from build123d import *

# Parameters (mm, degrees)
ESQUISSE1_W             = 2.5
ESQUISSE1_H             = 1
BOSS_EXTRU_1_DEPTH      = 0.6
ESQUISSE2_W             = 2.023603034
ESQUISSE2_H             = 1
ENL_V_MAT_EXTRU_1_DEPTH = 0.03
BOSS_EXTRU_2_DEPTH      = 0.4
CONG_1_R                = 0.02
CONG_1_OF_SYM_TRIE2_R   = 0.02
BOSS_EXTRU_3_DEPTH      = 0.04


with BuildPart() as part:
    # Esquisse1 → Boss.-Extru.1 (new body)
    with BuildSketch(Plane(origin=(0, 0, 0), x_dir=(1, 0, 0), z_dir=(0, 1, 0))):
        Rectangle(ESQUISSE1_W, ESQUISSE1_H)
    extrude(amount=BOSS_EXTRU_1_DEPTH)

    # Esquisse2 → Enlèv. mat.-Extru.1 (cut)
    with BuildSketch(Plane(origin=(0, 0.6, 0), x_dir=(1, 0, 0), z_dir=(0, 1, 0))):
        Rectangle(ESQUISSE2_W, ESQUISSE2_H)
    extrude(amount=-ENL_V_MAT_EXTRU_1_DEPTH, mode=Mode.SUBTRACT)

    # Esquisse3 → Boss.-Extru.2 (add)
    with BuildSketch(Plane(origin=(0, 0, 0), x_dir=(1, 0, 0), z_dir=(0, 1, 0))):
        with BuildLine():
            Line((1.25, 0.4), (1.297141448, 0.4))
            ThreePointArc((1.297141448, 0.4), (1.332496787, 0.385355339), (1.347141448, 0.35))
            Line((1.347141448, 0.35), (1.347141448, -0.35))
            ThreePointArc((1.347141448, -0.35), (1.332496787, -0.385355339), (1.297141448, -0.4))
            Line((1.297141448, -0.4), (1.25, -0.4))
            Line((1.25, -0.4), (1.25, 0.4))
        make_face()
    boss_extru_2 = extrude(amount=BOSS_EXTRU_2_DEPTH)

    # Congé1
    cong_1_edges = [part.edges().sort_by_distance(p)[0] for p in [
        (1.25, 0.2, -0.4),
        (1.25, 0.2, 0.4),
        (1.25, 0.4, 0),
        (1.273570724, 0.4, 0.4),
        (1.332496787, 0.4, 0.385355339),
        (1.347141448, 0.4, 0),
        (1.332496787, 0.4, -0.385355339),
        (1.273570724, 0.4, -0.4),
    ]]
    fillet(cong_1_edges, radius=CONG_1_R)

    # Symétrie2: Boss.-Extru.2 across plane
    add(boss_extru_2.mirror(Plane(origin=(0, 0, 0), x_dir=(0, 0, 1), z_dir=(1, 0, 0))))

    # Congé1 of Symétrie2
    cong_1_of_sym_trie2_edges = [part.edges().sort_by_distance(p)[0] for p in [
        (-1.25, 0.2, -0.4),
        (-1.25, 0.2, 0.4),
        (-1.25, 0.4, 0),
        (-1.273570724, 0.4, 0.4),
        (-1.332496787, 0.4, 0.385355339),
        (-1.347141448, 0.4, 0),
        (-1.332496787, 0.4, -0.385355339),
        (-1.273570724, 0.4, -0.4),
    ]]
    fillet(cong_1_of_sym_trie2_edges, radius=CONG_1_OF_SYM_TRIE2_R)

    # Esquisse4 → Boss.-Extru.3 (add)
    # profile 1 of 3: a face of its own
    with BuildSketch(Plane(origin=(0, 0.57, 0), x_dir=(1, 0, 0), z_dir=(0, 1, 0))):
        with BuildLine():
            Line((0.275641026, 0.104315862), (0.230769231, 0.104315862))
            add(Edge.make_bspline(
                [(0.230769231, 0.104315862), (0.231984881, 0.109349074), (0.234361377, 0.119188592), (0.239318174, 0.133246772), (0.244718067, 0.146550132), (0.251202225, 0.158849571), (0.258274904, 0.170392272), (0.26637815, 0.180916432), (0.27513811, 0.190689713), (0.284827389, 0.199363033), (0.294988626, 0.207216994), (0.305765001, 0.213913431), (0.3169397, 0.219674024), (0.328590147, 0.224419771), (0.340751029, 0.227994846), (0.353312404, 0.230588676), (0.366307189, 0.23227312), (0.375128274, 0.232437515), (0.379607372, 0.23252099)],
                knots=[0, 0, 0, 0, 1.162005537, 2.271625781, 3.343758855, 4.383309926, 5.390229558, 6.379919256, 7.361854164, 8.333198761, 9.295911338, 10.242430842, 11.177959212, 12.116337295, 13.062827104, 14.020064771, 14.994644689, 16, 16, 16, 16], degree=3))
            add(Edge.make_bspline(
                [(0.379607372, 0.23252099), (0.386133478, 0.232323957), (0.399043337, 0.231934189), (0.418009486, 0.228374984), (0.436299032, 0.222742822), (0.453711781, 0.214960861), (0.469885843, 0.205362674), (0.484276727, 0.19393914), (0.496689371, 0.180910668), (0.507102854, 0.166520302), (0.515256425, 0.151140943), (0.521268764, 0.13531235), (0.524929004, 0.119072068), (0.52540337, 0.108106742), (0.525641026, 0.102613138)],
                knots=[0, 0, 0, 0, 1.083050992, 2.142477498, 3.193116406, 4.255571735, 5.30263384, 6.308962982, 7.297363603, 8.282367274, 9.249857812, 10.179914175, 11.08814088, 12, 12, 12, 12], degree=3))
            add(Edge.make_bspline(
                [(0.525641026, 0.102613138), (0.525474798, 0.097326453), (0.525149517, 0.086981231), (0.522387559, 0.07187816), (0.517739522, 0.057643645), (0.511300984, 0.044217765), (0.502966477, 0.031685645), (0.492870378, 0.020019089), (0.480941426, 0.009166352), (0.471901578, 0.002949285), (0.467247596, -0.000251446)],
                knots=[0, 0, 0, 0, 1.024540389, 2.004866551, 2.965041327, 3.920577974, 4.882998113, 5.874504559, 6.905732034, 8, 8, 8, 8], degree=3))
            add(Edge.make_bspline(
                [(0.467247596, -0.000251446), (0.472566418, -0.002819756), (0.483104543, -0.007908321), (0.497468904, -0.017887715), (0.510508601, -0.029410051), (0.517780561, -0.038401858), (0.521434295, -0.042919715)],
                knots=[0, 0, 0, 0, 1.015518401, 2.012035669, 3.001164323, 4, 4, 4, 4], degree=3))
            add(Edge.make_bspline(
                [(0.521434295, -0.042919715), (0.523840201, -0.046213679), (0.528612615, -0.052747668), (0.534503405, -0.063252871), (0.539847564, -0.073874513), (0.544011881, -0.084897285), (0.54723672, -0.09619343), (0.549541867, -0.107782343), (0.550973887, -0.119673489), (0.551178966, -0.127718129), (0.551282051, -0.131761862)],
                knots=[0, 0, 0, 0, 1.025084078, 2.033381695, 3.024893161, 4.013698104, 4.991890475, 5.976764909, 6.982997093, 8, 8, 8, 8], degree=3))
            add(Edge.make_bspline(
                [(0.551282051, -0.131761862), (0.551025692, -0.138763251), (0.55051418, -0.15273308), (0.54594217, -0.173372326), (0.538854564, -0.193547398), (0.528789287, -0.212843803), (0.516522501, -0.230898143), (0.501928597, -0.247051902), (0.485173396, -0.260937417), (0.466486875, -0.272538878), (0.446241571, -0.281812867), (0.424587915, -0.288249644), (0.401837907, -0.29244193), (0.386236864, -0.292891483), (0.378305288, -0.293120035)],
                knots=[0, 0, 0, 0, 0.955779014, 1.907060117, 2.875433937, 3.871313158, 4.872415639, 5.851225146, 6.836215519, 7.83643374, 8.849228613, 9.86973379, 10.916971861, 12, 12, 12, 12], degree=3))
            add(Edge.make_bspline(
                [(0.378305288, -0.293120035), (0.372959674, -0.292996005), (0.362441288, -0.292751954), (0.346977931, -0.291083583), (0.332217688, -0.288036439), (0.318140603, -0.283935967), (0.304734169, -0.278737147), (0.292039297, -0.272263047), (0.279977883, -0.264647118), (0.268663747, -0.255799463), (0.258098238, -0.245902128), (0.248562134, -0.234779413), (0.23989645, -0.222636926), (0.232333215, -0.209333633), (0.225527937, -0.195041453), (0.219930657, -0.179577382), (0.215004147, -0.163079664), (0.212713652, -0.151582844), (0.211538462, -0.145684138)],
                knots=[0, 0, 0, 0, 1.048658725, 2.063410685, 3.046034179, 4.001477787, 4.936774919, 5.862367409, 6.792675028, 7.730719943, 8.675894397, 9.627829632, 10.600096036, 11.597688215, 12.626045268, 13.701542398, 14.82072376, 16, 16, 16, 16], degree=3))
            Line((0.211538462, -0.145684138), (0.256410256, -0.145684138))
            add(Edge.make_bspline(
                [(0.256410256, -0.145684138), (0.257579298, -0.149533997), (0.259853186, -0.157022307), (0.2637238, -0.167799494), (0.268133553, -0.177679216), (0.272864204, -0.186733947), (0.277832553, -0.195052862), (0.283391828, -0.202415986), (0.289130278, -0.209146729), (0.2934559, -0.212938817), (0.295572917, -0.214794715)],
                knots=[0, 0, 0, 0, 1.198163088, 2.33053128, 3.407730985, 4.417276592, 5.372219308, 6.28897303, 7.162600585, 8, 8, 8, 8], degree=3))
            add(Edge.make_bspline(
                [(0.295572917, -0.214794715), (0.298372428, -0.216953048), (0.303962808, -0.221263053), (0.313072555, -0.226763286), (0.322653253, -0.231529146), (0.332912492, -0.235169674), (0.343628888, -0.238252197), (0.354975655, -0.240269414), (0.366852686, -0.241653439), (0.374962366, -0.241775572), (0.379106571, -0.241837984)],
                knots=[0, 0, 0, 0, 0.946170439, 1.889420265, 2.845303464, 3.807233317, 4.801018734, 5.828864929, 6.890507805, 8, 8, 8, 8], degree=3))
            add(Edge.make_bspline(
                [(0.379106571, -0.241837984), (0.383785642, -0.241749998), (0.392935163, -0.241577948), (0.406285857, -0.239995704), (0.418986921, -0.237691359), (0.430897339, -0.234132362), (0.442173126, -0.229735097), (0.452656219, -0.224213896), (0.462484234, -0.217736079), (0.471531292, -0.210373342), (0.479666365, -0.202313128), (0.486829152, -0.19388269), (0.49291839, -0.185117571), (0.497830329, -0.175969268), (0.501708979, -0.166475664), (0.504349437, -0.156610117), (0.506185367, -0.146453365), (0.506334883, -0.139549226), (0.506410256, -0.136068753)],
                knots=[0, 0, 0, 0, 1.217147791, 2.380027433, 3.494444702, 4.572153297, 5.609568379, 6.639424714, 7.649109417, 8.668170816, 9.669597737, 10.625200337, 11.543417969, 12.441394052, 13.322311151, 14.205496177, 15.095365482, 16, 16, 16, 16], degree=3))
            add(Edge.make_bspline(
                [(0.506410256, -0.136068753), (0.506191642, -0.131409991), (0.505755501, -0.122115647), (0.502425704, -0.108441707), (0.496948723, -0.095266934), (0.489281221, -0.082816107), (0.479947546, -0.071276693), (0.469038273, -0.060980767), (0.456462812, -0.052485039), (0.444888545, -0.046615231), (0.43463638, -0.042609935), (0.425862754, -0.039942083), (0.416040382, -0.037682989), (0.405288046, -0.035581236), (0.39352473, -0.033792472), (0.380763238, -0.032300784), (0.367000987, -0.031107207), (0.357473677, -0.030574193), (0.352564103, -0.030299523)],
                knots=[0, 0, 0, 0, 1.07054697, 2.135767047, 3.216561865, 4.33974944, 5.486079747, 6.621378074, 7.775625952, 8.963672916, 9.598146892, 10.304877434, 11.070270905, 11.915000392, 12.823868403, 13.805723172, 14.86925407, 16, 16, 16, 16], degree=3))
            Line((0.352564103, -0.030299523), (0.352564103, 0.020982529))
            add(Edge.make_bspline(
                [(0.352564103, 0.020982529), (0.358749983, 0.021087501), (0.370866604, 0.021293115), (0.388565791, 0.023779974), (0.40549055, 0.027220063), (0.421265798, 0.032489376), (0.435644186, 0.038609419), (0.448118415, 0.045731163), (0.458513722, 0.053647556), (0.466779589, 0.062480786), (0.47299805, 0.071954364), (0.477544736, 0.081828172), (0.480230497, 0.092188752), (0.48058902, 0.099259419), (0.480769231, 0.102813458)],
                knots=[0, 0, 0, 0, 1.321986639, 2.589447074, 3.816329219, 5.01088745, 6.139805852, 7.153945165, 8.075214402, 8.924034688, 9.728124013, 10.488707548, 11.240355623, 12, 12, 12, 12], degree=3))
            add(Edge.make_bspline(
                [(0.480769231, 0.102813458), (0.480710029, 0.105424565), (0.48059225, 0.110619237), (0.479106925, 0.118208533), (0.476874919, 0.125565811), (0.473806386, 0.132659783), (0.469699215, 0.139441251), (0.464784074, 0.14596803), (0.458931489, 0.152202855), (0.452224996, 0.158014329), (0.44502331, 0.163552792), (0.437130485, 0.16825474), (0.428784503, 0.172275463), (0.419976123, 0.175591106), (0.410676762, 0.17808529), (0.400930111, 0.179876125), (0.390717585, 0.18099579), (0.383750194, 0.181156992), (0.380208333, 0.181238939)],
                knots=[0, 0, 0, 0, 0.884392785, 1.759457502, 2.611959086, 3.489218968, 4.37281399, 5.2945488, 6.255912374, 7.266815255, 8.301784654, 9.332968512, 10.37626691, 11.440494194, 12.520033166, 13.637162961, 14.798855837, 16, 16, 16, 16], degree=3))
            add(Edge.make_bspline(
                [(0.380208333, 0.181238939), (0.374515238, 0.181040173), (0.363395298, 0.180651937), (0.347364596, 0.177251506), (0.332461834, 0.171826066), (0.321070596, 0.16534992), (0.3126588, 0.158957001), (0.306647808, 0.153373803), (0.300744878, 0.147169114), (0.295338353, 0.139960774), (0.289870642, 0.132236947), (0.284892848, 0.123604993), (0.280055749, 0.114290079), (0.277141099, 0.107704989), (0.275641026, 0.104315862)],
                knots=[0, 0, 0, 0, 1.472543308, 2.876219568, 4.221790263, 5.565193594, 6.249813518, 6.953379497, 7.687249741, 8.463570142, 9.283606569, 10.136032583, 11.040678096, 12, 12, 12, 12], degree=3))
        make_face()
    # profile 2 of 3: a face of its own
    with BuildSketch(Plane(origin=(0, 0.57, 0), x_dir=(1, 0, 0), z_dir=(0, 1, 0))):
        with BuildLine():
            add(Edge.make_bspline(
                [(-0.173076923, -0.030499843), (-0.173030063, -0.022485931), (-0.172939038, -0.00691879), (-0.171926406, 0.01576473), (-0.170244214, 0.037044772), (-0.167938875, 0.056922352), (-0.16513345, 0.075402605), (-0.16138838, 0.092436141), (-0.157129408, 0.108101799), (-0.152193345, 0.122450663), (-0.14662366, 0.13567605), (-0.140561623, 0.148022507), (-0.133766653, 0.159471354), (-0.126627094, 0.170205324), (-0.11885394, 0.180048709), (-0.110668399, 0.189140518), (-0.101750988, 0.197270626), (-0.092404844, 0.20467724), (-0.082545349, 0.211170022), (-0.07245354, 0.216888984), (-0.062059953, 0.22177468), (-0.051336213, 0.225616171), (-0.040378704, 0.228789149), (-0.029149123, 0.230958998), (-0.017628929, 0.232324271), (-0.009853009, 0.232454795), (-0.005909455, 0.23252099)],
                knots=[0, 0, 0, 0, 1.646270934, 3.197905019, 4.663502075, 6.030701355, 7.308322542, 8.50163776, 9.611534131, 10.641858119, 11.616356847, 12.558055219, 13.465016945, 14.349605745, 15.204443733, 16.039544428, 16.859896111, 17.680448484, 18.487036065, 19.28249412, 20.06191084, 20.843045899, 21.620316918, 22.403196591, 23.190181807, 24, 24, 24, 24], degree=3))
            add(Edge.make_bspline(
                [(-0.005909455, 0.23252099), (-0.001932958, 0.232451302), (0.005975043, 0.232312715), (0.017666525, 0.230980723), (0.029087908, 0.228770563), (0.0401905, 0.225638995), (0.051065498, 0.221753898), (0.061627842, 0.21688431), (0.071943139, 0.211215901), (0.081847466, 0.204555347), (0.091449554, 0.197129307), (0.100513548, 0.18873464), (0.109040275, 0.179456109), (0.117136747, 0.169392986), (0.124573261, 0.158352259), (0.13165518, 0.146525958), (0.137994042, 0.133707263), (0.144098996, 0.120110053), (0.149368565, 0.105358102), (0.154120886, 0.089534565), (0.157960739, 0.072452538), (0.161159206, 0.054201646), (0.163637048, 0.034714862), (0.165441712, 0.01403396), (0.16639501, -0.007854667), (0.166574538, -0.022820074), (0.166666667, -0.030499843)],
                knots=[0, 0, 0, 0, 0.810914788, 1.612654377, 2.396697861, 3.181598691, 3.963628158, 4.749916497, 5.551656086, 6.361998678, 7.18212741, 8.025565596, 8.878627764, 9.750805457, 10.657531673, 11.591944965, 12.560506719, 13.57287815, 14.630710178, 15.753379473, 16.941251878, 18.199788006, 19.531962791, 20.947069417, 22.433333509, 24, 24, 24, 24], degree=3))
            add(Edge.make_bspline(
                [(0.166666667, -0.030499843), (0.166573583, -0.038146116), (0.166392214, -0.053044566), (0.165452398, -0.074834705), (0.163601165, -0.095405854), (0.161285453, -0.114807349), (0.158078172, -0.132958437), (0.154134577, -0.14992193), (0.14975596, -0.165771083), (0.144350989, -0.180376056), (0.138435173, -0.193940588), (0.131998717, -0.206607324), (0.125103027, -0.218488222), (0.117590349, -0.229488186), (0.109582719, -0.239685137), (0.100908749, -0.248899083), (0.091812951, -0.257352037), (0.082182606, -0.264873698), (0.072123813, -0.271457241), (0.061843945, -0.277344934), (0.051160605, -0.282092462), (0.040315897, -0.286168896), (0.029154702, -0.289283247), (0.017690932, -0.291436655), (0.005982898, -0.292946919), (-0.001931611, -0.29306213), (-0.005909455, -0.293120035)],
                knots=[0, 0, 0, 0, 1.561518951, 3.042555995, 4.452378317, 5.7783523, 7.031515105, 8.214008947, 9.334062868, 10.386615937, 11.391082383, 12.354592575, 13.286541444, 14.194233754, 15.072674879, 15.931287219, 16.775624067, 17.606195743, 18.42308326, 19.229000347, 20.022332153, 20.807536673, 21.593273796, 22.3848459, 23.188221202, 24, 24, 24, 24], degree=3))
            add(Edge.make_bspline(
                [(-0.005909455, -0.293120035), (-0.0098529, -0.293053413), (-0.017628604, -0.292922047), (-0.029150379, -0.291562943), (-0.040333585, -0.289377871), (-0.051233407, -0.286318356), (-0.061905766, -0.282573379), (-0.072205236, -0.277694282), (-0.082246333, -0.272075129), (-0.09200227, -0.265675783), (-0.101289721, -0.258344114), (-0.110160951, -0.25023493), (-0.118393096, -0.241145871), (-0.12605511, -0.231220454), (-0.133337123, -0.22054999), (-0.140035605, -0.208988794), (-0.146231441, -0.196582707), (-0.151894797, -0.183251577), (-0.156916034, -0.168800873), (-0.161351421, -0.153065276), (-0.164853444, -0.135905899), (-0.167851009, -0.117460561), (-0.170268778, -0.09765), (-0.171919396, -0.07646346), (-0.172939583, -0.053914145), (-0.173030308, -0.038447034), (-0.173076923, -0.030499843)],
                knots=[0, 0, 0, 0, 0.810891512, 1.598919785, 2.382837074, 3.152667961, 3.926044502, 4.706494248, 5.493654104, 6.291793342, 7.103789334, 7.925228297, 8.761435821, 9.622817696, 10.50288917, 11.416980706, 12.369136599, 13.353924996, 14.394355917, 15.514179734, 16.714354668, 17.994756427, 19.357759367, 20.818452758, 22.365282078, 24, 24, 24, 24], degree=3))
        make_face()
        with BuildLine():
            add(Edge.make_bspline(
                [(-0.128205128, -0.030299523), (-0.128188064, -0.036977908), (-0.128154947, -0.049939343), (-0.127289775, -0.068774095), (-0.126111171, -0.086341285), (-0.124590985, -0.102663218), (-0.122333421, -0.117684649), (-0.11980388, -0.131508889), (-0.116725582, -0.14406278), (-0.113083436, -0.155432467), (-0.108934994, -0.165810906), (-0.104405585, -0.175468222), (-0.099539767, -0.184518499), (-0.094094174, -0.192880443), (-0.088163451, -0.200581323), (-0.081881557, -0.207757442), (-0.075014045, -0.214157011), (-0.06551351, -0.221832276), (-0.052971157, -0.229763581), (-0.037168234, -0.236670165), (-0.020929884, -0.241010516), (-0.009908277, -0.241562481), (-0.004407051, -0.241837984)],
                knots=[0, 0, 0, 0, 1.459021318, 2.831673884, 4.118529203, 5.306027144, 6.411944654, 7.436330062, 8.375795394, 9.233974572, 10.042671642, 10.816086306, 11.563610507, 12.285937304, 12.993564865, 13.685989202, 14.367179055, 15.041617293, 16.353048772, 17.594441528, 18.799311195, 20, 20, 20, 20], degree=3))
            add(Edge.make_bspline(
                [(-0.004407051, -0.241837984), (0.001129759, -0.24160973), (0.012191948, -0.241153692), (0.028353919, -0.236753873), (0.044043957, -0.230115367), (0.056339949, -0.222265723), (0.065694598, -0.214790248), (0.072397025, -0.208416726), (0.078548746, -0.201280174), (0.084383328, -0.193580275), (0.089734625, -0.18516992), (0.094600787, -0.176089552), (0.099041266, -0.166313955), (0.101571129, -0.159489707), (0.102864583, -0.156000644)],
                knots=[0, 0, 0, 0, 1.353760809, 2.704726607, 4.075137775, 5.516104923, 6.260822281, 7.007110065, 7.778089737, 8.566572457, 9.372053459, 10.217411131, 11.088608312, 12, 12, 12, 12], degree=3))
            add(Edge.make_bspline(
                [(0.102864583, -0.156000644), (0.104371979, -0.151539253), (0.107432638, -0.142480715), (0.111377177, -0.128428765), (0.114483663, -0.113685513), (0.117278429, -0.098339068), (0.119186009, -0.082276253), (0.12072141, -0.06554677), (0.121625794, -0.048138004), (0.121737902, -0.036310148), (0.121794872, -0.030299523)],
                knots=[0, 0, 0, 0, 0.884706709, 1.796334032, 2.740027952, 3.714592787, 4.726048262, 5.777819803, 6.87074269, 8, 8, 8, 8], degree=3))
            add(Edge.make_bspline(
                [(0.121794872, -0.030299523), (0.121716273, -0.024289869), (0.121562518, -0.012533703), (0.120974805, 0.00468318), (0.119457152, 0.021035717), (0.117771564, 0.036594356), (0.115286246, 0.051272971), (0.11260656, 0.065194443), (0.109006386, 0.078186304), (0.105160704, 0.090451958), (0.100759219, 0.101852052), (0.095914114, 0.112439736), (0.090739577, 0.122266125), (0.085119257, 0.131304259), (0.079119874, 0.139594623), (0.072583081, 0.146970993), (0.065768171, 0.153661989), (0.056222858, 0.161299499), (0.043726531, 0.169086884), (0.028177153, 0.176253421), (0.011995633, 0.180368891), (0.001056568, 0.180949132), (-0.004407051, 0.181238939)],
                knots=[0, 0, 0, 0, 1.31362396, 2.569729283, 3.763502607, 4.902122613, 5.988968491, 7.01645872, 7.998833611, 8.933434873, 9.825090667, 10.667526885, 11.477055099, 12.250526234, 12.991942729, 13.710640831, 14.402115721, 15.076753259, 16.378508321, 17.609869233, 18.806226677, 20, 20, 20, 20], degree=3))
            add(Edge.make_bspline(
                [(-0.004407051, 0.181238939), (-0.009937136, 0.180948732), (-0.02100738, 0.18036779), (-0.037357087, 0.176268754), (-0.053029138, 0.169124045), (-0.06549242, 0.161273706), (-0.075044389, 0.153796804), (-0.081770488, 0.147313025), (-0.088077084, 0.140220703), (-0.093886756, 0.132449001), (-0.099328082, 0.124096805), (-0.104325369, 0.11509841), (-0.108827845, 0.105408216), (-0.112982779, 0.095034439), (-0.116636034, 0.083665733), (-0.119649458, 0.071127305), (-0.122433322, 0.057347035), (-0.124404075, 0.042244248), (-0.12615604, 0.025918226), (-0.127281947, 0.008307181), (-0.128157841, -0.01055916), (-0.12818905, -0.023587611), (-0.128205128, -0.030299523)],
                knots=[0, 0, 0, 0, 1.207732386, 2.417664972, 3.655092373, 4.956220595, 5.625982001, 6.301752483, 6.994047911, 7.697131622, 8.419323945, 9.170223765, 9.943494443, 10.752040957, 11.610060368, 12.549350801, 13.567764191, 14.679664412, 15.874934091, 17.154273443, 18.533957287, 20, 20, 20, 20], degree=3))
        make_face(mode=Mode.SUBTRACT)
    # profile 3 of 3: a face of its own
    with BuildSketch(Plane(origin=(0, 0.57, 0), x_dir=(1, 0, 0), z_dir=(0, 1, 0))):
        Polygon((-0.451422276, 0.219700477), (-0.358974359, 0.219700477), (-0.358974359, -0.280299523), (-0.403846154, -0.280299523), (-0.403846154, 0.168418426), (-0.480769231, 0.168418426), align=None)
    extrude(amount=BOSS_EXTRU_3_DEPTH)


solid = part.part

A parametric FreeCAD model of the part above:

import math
import FreeCAD as App
import Part
import Sketcher
Q = App.Units.Quantity


def edges_at(feature, points):
    """Names of the edges that pass closest to the given points."""
    edges = feature.Shape.Edges
    near = lambda p: min(range(len(edges)), key=lambda i: edges[i].distToShape(Part.Vertex(*p))[0])
    return sorted({f"Edge{near(p) + 1}" for p in points})

doc = App.newDocument("Part")
params = doc.addObject("Spreadsheet::Sheet", "Params")
for row, (alias, value) in enumerate([
    ("sketch1_height", "1 mm"),
    ("sketch1_width", "2.5 mm"),
    ("pad1_length", "0.6 mm"),
    ("sketch2_height", "1 mm"),
    ("pocket1_length", "0.03 mm"),
    ("sketch3_radius", "0.05 mm"),
    ("sketch3_height", "0.8 mm"),
    ("pad2_length", "0.4 mm"),
    ("fillet_radius", "0.02 mm"),
    ("fillet2_radius", "0.02 mm"),
    ("sketch4_height", "0.5 mm"),
    ("pad3_length", "0.04 mm"),
], start=1):
    params.set(f"A{row}", alias)
    params.set(f"B{row}", "=" + value)
    params.setAlias(f"B{row}", alias)

body = doc.addObject("PartDesign::Body", "Body")

# Sketch on XZ plane
sketch1 = doc.addObject("Sketcher::SketchObject", "Sketch")
body.addObject(sketch1)
sketch1.AttachmentSupport = (doc.XZ_Plane, [""])
sketch1.MapMode = "FlatFace"
sketch1.addGeometry(Part.LineSegment(App.Vector(-1.2, -0.5, 0), App.Vector(-1.2, 0.5, 0)), False)
sketch1.addGeometry(Part.LineSegment(App.Vector(-1.2, 0.5, 0), App.Vector(1.2, 0.5, 0)), False)
sketch1.addGeometry(Part.LineSegment(App.Vector(1.2, 0.5, 0), App.Vector(1.2, -0.5, 0)), False)
sketch1.addGeometry(Part.LineSegment(App.Vector(1.2, -0.5, 0), App.Vector(-1.2, -0.5, 0)), False)
sketch1.addConstraint(Sketcher.Constraint("Coincident", 0, 2, 1, 1))
sketch1.addConstraint(Sketcher.Constraint("Coincident", 1, 2, 2, 1))
sketch1.addConstraint(Sketcher.Constraint("Coincident", 2, 2, 3, 1))
sketch1.addConstraint(Sketcher.Constraint("Coincident", 3, 2, 0, 1))
sketch1.addConstraint(Sketcher.Constraint("Vertical", 0))
sketch1.addConstraint(Sketcher.Constraint("Horizontal", 1))
sketch1.addConstraint(Sketcher.Constraint("Vertical", 2))
sketch1.addConstraint(Sketcher.Constraint("Horizontal", 3))
sketch1.addConstraint(Sketcher.Constraint("Symmetric", 0, 2, 2, 2, -1, 1))
sketch1.addConstraint(Sketcher.Constraint("DistanceY", 0, 1, 0, 2, Q("1 mm")))
sketch1.addConstraint(Sketcher.Constraint("DistanceX", 1, 1, 1, 2, Q("2.5 mm")))
sketch1.setExpression("Constraints[9]", "Params.sketch1_height")
sketch1.setExpression("Constraints[10]", "Params.sketch1_width")
pad1 = doc.addObject("PartDesign::Pad", "Pad")
body.addObject(pad1)
pad1.Profile = sketch1
pad1.setExpression("Length", "Params.pad1_length")
pad1.Reversed = True

# Sketch on XZ plane
sketch2 = doc.addObject("Sketcher::SketchObject", "Sketch001")
body.addObject(sketch2)
sketch2.AttachmentSupport = (doc.XZ_Plane, [""])
sketch2.MapMode = "FlatFace"
sketch2.AttachmentOffset = App.Placement(App.Vector(0, 0, -0.6), App.Rotation())
sketch2.addGeometry(Part.LineSegment(App.Vector(-1, -0.5, 0), App.Vector(-1, 0.5, 0)), False)
sketch2.addGeometry(Part.LineSegment(App.Vector(-1, 0.5, 0), App.Vector(1, 0.5, 0)), False)
sketch2.addGeometry(Part.LineSegment(App.Vector(1, 0.5, 0), App.Vector(1, -0.5, 0)), False)
sketch2.addGeometry(Part.LineSegment(App.Vector(1, -0.5, 0), App.Vector(-1, -0.5, 0)), False)
sketch2.addConstraint(Sketcher.Constraint("Coincident", 0, 2, 1, 1))
sketch2.addConstraint(Sketcher.Constraint("Coincident", 1, 2, 2, 1))
sketch2.addConstraint(Sketcher.Constraint("Coincident", 2, 2, 3, 1))
sketch2.addConstraint(Sketcher.Constraint("Coincident", 3, 2, 0, 1))
sketch2.addConstraint(Sketcher.Constraint("Vertical", 0))
sketch2.addConstraint(Sketcher.Constraint("Horizontal", 1))
sketch2.addConstraint(Sketcher.Constraint("Vertical", 2))
sketch2.addConstraint(Sketcher.Constraint("Horizontal", 3))
sketch2.addConstraint(Sketcher.Constraint("Symmetric", 0, 2, 2, 2, -1, 1))
sketch2.addConstraint(Sketcher.Constraint("DistanceY", 0, 1, 0, 2, Q("1 mm")))
sketch2.addConstraint(Sketcher.Constraint("DistanceX", 0, 2, -1, 1, Q("1.011802 mm")))
sketch2.setExpression("Constraints[9]", "Params.sketch2_height")
pocket1 = doc.addObject("PartDesign::Pocket", "Pocket")
body.addObject(pocket1)
pocket1.Profile = sketch2
pocket1.setExpression("Length", "Params.pocket1_length")
pocket1.Reversed = True

# Sketch on XZ plane
sketch3 = doc.addObject("Sketcher::SketchObject", "Sketch002")
body.addObject(sketch3)
sketch3.AttachmentSupport = (doc.XZ_Plane, [""])
sketch3.MapMode = "FlatFace"
sketch3.addGeometry(Part.LineSegment(App.Vector(1.297, -0.4, 0), App.Vector(1.25, -0.4, 0)), False)
sketch3.addGeometry(Part.LineSegment(App.Vector(1.25, -0.4, 0), App.Vector(1.25, 0.4, 0)), False)
sketch3.addGeometry(Part.LineSegment(App.Vector(1.25, 0.4, 0), App.Vector(1.297, 0.4, 0)), False)
sketch3.addGeometry(Part.ArcOfCircle(Part.Circle(App.Vector(1.297, 0.35, 0), App.Vector(0, 0, 1), 0.05), math.radians(0), math.radians(90)), False)
sketch3.addGeometry(Part.LineSegment(App.Vector(1.347, 0.35, 0), App.Vector(1.347, -0.35, 0)), False)
sketch3.addGeometry(Part.ArcOfCircle(Part.Circle(App.Vector(1.297, -0.35, 0), App.Vector(0, 0, 1), 0.05), math.radians(-90), math.radians(0)), False)
sketch3.addConstraint(Sketcher.Constraint("Coincident", 0, 2, 1, 1))
sketch3.addConstraint(Sketcher.Constraint("Coincident", 1, 2, 2, 1))
sketch3.addConstraint(Sketcher.Constraint("Tangent", 2, 2, 3, 2))
sketch3.addConstraint(Sketcher.Constraint("Tangent", 3, 1, 4, 1))
sketch3.addConstraint(Sketcher.Constraint("Tangent", 4, 2, 5, 2))
sketch3.addConstraint(Sketcher.Constraint("Tangent", 5, 1, 0, 1))
sketch3.addConstraint(Sketcher.Constraint("Horizontal", 0))
sketch3.addConstraint(Sketcher.Constraint("Vertical", 1))
sketch3.addConstraint(Sketcher.Constraint("Horizontal", 2))
sketch3.addConstraint(Sketcher.Constraint("Vertical", 4))
sketch3.addConstraint(Sketcher.Constraint("Equal", 3, 5))
sketch3.addConstraint(Sketcher.Constraint("Radius", 3, Q("0.05 mm")))
sketch3.addConstraint(Sketcher.Constraint("DistanceY", 1, 1, 1, 2, Q("0.8 mm")))
sketch3.addConstraint(Sketcher.Constraint("DistanceY", 0, 2, -1, 1, Q("0.4 mm")))
sketch3.addConstraint(Sketcher.Constraint("DistanceX", -1, 1, 0, 2, Q("1.25 mm")))
sketch3.addConstraint(Sketcher.Constraint("DistanceX", 0, 2, 0, 1, Q("0.047141 mm")))
sketch3.setExpression("Constraints[11]", "Params.sketch3_radius")
sketch3.setExpression("Constraints[12]", "Params.sketch3_height")
pad2 = doc.addObject("PartDesign::Pad", "Pad001")
body.addObject(pad2)
pad2.Profile = sketch3
pad2.setExpression("Length", "Params.pad2_length")
pad2.Reversed = True
doc.recompute()

fillet = doc.addObject("PartDesign::Fillet", "Fillet")
body.addObject(fillet)
fillet.Base = (pad2, edges_at(pad2, [
    (1.25, 0.2, -0.4),
    (1.25, 0.2, 0.4),
    (1.25, 0.4, 0),
    (1.274, 0.4, 0.4),
    (1.332, 0.4, 0.385),
    (1.347, 0.4, 0),
    (1.332, 0.4, -0.385),
    (1.274, 0.4, -0.4),
]))
fillet.setExpression("Radius", "Params.fillet_radius")
doc.recompute()

mirrored = doc.addObject("PartDesign::Mirrored", "Mirrored")
body.addObject(mirrored)
mirrored.Originals = [pad2]
mirrored.MirrorPlane = (doc.YZ_Plane, [""])
body.Tip = mirrored
doc.recompute()

fillet2 = doc.addObject("PartDesign::Fillet", "Fillet001")
body.addObject(fillet2)
fillet2.Base = (mirrored, edges_at(mirrored, [
    (-1.25, 0.2, -0.4),
    (-1.25, 0.2, 0.4),
    (-1.25, 0.4, 0),
    (-1.274, 0.4, 0.4),
    (-1.332, 0.4, 0.385),
    (-1.347, 0.4, 0),
    (-1.332, 0.4, -0.385),
    (-1.274, 0.4, -0.4),
]))
fillet2.setExpression("Radius", "Params.fillet2_radius")

# Sketch on XZ plane
sketch4 = doc.addObject("Sketcher::SketchObject", "Sketch003")
body.addObject(sketch4)
sketch4.AttachmentSupport = (doc.XZ_Plane, [""])
sketch4.MapMode = "FlatFace"
sketch4.AttachmentOffset = App.Placement(App.Vector(0, 0, -0.57), App.Rotation())
sketch4.addGeometry(Part.LineSegment(App.Vector(0.230769, -0.104316, 0), App.Vector(0.275641, -0.104316, 0)), False)
sketch4.addGeometry(Part.BSplineCurve([App.Vector(0.380208, -0.181239, 0), App.Vector(0.374515, -0.18104, 0), App.Vector(0.363395, -0.180652, 0), App.Vector(0.347365, -0.177252, 0), App.Vector(0.332462, -0.171826, 0), App.Vector(0.321071, -0.16535, 0), App.Vector(0.312659, -0.158957, 0), App.Vector(0.306648, -0.153374, 0), App.Vector(0.300745, -0.147169, 0), App.Vector(0.295338, -0.139961, 0), App.Vector(0.289871, -0.132237, 0), App.Vector(0.284893, -0.123605, 0), App.Vector(0.280056, -0.11429, 0), App.Vector(0.277141, -0.107705, 0), App.Vector(0.275641, -0.104316, 0)], [4, 1, 1, 1, 1, 1, 1, 1, 1, 1, 1, 1, 4], [0, 1.472543308, 2.876219568, 4.221790263, 5.565193594, 6.249813518, 6.953379497, 7.687249741, 8.463570142, 9.283606569, 10.136032583, 11.040678096, 12], False, 3, [1, 1, 1, 1, 1, 1, 1, 1, 1, 1, 1, 1, 1, 1, 1], False), False)
sketch4.addGeometry(Part.BSplineCurve([App.Vector(0.480769, -0.102813, 0), App.Vector(0.48071, -0.105425, 0), App.Vector(0.480592, -0.110619, 0), App.Vector(0.479107, -0.118209, 0), App.Vector(0.476875, -0.125566, 0), App.Vector(0.473806, -0.13266, 0), App.Vector(0.469699, -0.139441, 0), App.Vector(0.464784, -0.145968, 0), App.Vector(0.458931, -0.152203, 0), App.Vector(0.452225, -0.158014, 0), App.Vector(0.445023, -0.163553, 0), App.Vector(0.43713, -0.168255, 0), App.Vector(0.428785, -0.172275, 0), App.Vector(0.419976, -0.175591, 0), App.Vector(0.410677, -0.178085, 0), App.Vector(0.40093, -0.179876, 0), App.Vector(0.390718, -0.180996, 0), App.Vector(0.38375, -0.181157, 0), App.Vector(0.380208, -0.181239, 0)], [4, 1, 1, 1, 1, 1, 1, 1, 1, 1, 1, 1, 1, 1, 1, 1, 4], [0, 0.884392785, 1.759457502, 2.611959086, 3.489218968, 4.37281399, 5.2945488, 6.255912374, 7.266815255, 8.301784654, 9.332968512, 10.37626691, 11.440494194, 12.520033166, 13.637162961, 14.798855837, 16], False, 3, [1, 1, 1, 1, 1, 1, 1, 1, 1, 1, 1, 1, 1, 1, 1, 1, 1, 1, 1], False), False)
sketch4.addGeometry(Part.BSplineCurve([App.Vector(0.352564, -0.020983, 0), App.Vector(0.35875, -0.021088, 0), App.Vector(0.370867, -0.021293, 0), App.Vector(0.388566, -0.02378, 0), App.Vector(0.405491, -0.02722, 0), App.Vector(0.421266, -0.032489, 0), App.Vector(0.435644, -0.038609, 0), App.Vector(0.448118, -0.045731, 0), App.Vector(0.458514, -0.053648, 0), App.Vector(0.46678, -0.062481, 0), App.Vector(0.472998, -0.071954, 0), App.Vector(0.477545, -0.081828, 0), App.Vector(0.48023, -0.092189, 0), App.Vector(0.480589, -0.099259, 0), App.Vector(0.480769, -0.102813, 0)], [4, 1, 1, 1, 1, 1, 1, 1, 1, 1, 1, 1, 4], [0, 1.321986639, 2.589447074, 3.816329219, 5.01088745, 6.139805852, 7.153945165, 8.075214402, 8.924034688, 9.728124013, 10.488707548, 11.240355623, 12], False, 3, [1, 1, 1, 1, 1, 1, 1, 1, 1, 1, 1, 1, 1, 1, 1], False), False)
sketch4.addGeometry(Part.LineSegment(App.Vector(0.352564, -0.020983, 0), App.Vector(0.352564, 0.0303, 0)), False)
sketch4.addGeometry(Part.BSplineCurve([App.Vector(0.50641, 0.136069, 0), App.Vector(0.506192, 0.13141, 0), App.Vector(0.505756, 0.122116, 0), App.Vector(0.502426, 0.108442, 0), App.Vector(0.496949, 0.095267, 0), App.Vector(0.489281, 0.082816, 0), App.Vector(0.479948, 0.071277, 0), App.Vector(0.469038, 0.060981, 0), App.Vector(0.456463, 0.052485, 0), App.Vector(0.444889, 0.046615, 0), App.Vector(0.434636, 0.04261, 0), App.Vector(0.425863, 0.039942, 0), App.Vector(0.41604, 0.037683, 0), App.Vector(0.405288, 0.035581, 0), App.Vector(0.393525, 0.033792, 0), App.Vector(0.380763, 0.032301, 0), App.Vector(0.367001, 0.031107, 0), App.Vector(0.357474, 0.030574, 0), App.Vector(0.352564, 0.0303, 0)], [4, 1, 1, 1, 1, 1, 1, 1, 1, 1, 1, 1, 1, 1, 1, 1, 4], [0, 1.07054697, 2.135767047, 3.216561865, 4.33974944, 5.486079747, 6.621378074, 7.775625952, 8.963672916, 9.598146892, 10.304877434, 11.070270905, 11.915000392, 12.823868403, 13.805723172, 14.86925407, 16], False, 3, [1, 1, 1, 1, 1, 1, 1, 1, 1, 1, 1, 1, 1, 1, 1, 1, 1, 1, 1], False), False)
sketch4.addGeometry(Part.BSplineCurve([App.Vector(0.379107, 0.241838, 0), App.Vector(0.383786, 0.24175, 0), App.Vector(0.392935, 0.241578, 0), App.Vector(0.406286, 0.239996, 0), App.Vector(0.418987, 0.237691, 0), App.Vector(0.430897, 0.234132, 0), App.Vector(0.442173, 0.229735, 0), App.Vector(0.452656, 0.224214, 0), App.Vector(0.462484, 0.217736, 0), App.Vector(0.471531, 0.210373, 0), App.Vector(0.479666, 0.202313, 0), App.Vector(0.486829, 0.193883, 0), App.Vector(0.492918, 0.185118, 0), App.Vector(0.49783, 0.175969, 0), App.Vector(0.501709, 0.166476, 0), App.Vector(0.504349, 0.15661, 0), App.Vector(0.506185, 0.146453, 0), App.Vector(0.506335, 0.139549, 0), App.Vector(0.50641, 0.136069, 0)], [4, 1, 1, 1, 1, 1, 1, 1, 1, 1, 1, 1, 1, 1, 1, 1, 4], [0, 1.217147791, 2.380027433, 3.494444702, 4.572153297, 5.609568379, 6.639424714, 7.649109417, 8.668170816, 9.669597737, 10.625200337, 11.543417969, 12.441394052, 13.322311151, 14.205496177, 15.095365482, 16], False, 3, [1, 1, 1, 1, 1, 1, 1, 1, 1, 1, 1, 1, 1, 1, 1, 1, 1, 1, 1], False), False)
sketch4.addGeometry(Part.BSplineCurve([App.Vector(0.295573, 0.214795, 0), App.Vector(0.298372, 0.216953, 0), App.Vector(0.303963, 0.221263, 0), App.Vector(0.313073, 0.226763, 0), App.Vector(0.322653, 0.231529, 0), App.Vector(0.332912, 0.23517, 0), App.Vector(0.343629, 0.238252, 0), App.Vector(0.354976, 0.240269, 0), App.Vector(0.366853, 0.241653, 0), App.Vector(0.374962, 0.241776, 0), App.Vector(0.379107, 0.241838, 0)], [4, 1, 1, 1, 1, 1, 1, 1, 4], [0, 0.946170439, 1.889420265, 2.845303464, 3.807233317, 4.801018734, 5.828864929, 6.890507805, 8], False, 3, [1, 1, 1, 1, 1, 1, 1, 1, 1, 1, 1], False), False)
sketch4.addGeometry(Part.BSplineCurve([App.Vector(0.25641, 0.145684, 0), App.Vector(0.257579, 0.149534, 0), App.Vector(0.259853, 0.157022, 0), App.Vector(0.263724, 0.167799, 0), App.Vector(0.268134, 0.177679, 0), App.Vector(0.272864, 0.186734, 0), App.Vector(0.277833, 0.195053, 0), App.Vector(0.283392, 0.202416, 0), App.Vector(0.28913, 0.209147, 0), App.Vector(0.293456, 0.212939, 0), App.Vector(0.295573, 0.214795, 0)], [4, 1, 1, 1, 1, 1, 1, 1, 4], [0, 1.198163088, 2.33053128, 3.407730985, 4.417276592, 5.372219308, 6.28897303, 7.162600585, 8], False, 3, [1, 1, 1, 1, 1, 1, 1, 1, 1, 1, 1], False), False)
sketch4.addGeometry(Part.LineSegment(App.Vector(0.25641, 0.145684, 0), App.Vector(0.211538, 0.145684, 0)), False)
sketch4.addGeometry(Part.BSplineCurve([App.Vector(0.378305, 0.29312, 0), App.Vector(0.37296, 0.292996, 0), App.Vector(0.362441, 0.292752, 0), App.Vector(0.346978, 0.291084, 0), App.Vector(0.332218, 0.288036, 0), App.Vector(0.318141, 0.283936, 0), App.Vector(0.304734, 0.278737, 0), App.Vector(0.292039, 0.272263, 0), App.Vector(0.279978, 0.264647, 0), App.Vector(0.268664, 0.255799, 0), App.Vector(0.258098, 0.245902, 0), App.Vector(0.248562, 0.234779, 0), App.Vector(0.239896, 0.222637, 0), App.Vector(0.232333, 0.209334, 0), App.Vector(0.225528, 0.195041, 0), App.Vector(0.219931, 0.179577, 0), App.Vector(0.215004, 0.16308, 0), App.Vector(0.212714, 0.151583, 0), App.Vector(0.211538, 0.145684, 0)], [4, 1, 1, 1, 1, 1, 1, 1, 1, 1, 1, 1, 1, 1, 1, 1, 4], [0, 1.048658725, 2.063410685, 3.046034179, 4.001477787, 4.936774919, 5.862367409, 6.792675028, 7.730719943, 8.675894397, 9.627829632, 10.600096036, 11.597688215, 12.626045268, 13.701542398, 14.82072376, 16], False, 3, [1, 1, 1, 1, 1, 1, 1, 1, 1, 1, 1, 1, 1, 1, 1, 1, 1, 1, 1], False), False)
sketch4.addGeometry(Part.BSplineCurve([App.Vector(0.551282, 0.131762, 0), App.Vector(0.551026, 0.138763, 0), App.Vector(0.550514, 0.152733, 0), App.Vector(0.545942, 0.173372, 0), App.Vector(0.538855, 0.193547, 0), App.Vector(0.528789, 0.212844, 0), App.Vector(0.516523, 0.230898, 0), App.Vector(0.501929, 0.247052, 0), App.Vector(0.485173, 0.260937, 0), App.Vector(0.466487, 0.272539, 0), App.Vector(0.446242, 0.281813, 0), App.Vector(0.424588, 0.28825, 0), App.Vector(0.401838, 0.292442, 0), App.Vector(0.386237, 0.292891, 0), App.Vector(0.378305, 0.29312, 0)], [4, 1, 1, 1, 1, 1, 1, 1, 1, 1, 1, 1, 4], [0, 0.955779014, 1.907060117, 2.875433937, 3.871313158, 4.872415639, 5.851225146, 6.836215519, 7.83643374, 8.849228613, 9.86973379, 10.916971861, 12], False, 3, [1, 1, 1, 1, 1, 1, 1, 1, 1, 1, 1, 1, 1, 1, 1], False), False)
sketch4.addGeometry(Part.BSplineCurve([App.Vector(0.521434, 0.04292, 0), App.Vector(0.52384, 0.046214, 0), App.Vector(0.528613, 0.052748, 0), App.Vector(0.534503, 0.063253, 0), App.Vector(0.539848, 0.073875, 0), App.Vector(0.544012, 0.084897, 0), App.Vector(0.547237, 0.096193, 0), App.Vector(0.549542, 0.107782, 0), App.Vector(0.550974, 0.119673, 0), App.Vector(0.551179, 0.127718, 0), App.Vector(0.551282, 0.131762, 0)], [4, 1, 1, 1, 1, 1, 1, 1, 4], [0, 1.025084078, 2.033381695, 3.024893161, 4.013698104, 4.991890475, 5.976764909, 6.982997093, 8], False, 3, [1, 1, 1, 1, 1, 1, 1, 1, 1, 1, 1], False), False)
sketch4.addGeometry(Part.BSplineCurve([App.Vector(0.467248, 0.000251, 0), App.Vector(0.472566, 0.00282, 0), App.Vector(0.483105, 0.007908, 0), App.Vector(0.497469, 0.017888, 0), App.Vector(0.510509, 0.02941, 0), App.Vector(0.517781, 0.038402, 0), App.Vector(0.521434, 0.04292, 0)], [4, 1, 1, 1, 4], [0, 1.015518401, 2.012035669, 3.001164323, 4], False, 3, [1, 1, 1, 1, 1, 1, 1], False), False)
sketch4.addGeometry(Part.BSplineCurve([App.Vector(0.525641, -0.102613, 0), App.Vector(0.525475, -0.097326, 0), App.Vector(0.52515, -0.086981, 0), App.Vector(0.522388, -0.071878, 0), App.Vector(0.51774, -0.057644, 0), App.Vector(0.511301, -0.044218, 0), App.Vector(0.502966, -0.031686, 0), App.Vector(0.49287, -0.020019, 0), App.Vector(0.480941, -0.009166, 0), App.Vector(0.471902, -0.002949, 0), App.Vector(0.467248, 0.000251, 0)], [4, 1, 1, 1, 1, 1, 1, 1, 4], [0, 1.024540389, 2.004866551, 2.965041327, 3.920577974, 4.882998113, 5.874504559, 6.905732034, 8], False, 3, [1, 1, 1, 1, 1, 1, 1, 1, 1, 1, 1], False), False)
sketch4.addGeometry(Part.BSplineCurve([App.Vector(0.379607, -0.232521, 0), App.Vector(0.386133, -0.232324, 0), App.Vector(0.399043, -0.231934, 0), App.Vector(0.418009, -0.228375, 0), App.Vector(0.436299, -0.222743, 0), App.Vector(0.453712, -0.214961, 0), App.Vector(0.469886, -0.205363, 0), App.Vector(0.484277, -0.193939, 0), App.Vector(0.496689, -0.180911, 0), App.Vector(0.507103, -0.16652, 0), App.Vector(0.515256, -0.151141, 0), App.Vector(0.521269, -0.135312, 0), App.Vector(0.524929, -0.119072, 0), App.Vector(0.525403, -0.108107, 0), App.Vector(0.525641, -0.102613, 0)], [4, 1, 1, 1, 1, 1, 1, 1, 1, 1, 1, 1, 4], [0, 1.083050992, 2.142477498, 3.193116406, 4.255571735, 5.30263384, 6.308962982, 7.297363603, 8.282367274, 9.249857812, 10.179914175, 11.08814088, 12], False, 3, [1, 1, 1, 1, 1, 1, 1, 1, 1, 1, 1, 1, 1, 1, 1], False), False)
sketch4.addGeometry(Part.BSplineCurve([App.Vector(0.230769, -0.104316, 0), App.Vector(0.231985, -0.109349, 0), App.Vector(0.234361, -0.119189, 0), App.Vector(0.239318, -0.133247, 0), App.Vector(0.244718, -0.14655, 0), App.Vector(0.251202, -0.15885, 0), App.Vector(0.258275, -0.170392, 0), App.Vector(0.266378, -0.180916, 0), App.Vector(0.275138, -0.19069, 0), App.Vector(0.284827, -0.199363, 0), App.Vector(0.294989, -0.207217, 0), App.Vector(0.305765, -0.213913, 0), App.Vector(0.31694, -0.219674, 0), App.Vector(0.32859, -0.22442, 0), App.Vector(0.340751, -0.227995, 0), App.Vector(0.353312, -0.230589, 0), App.Vector(0.366307, -0.232273, 0), App.Vector(0.375128, -0.232438, 0), App.Vector(0.379607, -0.232521, 0)], [4, 1, 1, 1, 1, 1, 1, 1, 1, 1, 1, 1, 1, 1, 1, 1, 4], [0, 1.162005537, 2.271625781, 3.343758855, 4.383309926, 5.390229558, 6.379919256, 7.361854164, 8.333198761, 9.295911338, 10.242430842, 11.177959212, 12.116337295, 13.062827104, 14.020064771, 14.994644689, 16], False, 3, [1, 1, 1, 1, 1, 1, 1, 1, 1, 1, 1, 1, 1, 1, 1, 1, 1, 1, 1], False), False)
sketch4.addGeometry(Part.BSplineCurve([App.Vector(-0.173077, 0.0305, 0), App.Vector(-0.17303, 0.022486, 0), App.Vector(-0.172939, 0.006919, 0), App.Vector(-0.171926, -0.015765, 0), App.Vector(-0.170244, -0.037045, 0), App.Vector(-0.167939, -0.056922, 0), App.Vector(-0.165133, -0.075403, 0), App.Vector(-0.161388, -0.092436, 0), App.Vector(-0.157129, -0.108102, 0), App.Vector(-0.152193, -0.122451, 0), App.Vector(-0.146624, -0.135676, 0), App.Vector(-0.140562, -0.148023, 0), App.Vector(-0.133767, -0.159471, 0), App.Vector(-0.126627, -0.170205, 0), App.Vector(-0.118854, -0.180049, 0), App.Vector(-0.110668, -0.189141, 0), App.Vector(-0.101751, -0.197271, 0), App.Vector(-0.092405, -0.204677, 0), App.Vector(-0.082545, -0.21117, 0), App.Vector(-0.072454, -0.216889, 0), App.Vector(-0.06206, -0.221775, 0), App.Vector(-0.051336, -0.225616, 0), App.Vector(-0.040379, -0.228789, 0), App.Vector(-0.029149, -0.230959, 0), App.Vector(-0.017629, -0.232324, 0), App.Vector(-0.009853, -0.232455, 0), App.Vector(-0.005909, -0.232521, 0)], [4, 1, 1, 1, 1, 1, 1, 1, 1, 1, 1, 1, 1, 1, 1, 1, 1, 1, 1, 1, 1, 1, 1, 1, 4], [0, 1.646270934, 3.197905019, 4.663502075, 6.030701355, 7.308322542, 8.50163776, 9.611534131, 10.641858119, 11.616356847, 12.558055219, 13.465016945, 14.349605745, 15.204443733, 16.039544428, 16.859896111, 17.680448484, 18.487036065, 19.28249412, 20.06191084, 20.843045899, 21.620316918, 22.403196591, 23.190181807, 24], False, 3, [1, 1, 1, 1, 1, 1, 1, 1, 1, 1, 1, 1, 1, 1, 1, 1, 1, 1, 1, 1, 1, 1, 1, 1, 1, 1, 1], False), False)
sketch4.addGeometry(Part.BSplineCurve([App.Vector(-0.005909, 0.29312, 0), App.Vector(-0.009853, 0.293053, 0), App.Vector(-0.017629, 0.292922, 0), App.Vector(-0.02915, 0.291563, 0), App.Vector(-0.040334, 0.289378, 0), App.Vector(-0.051233, 0.286318, 0), App.Vector(-0.061906, 0.282573, 0), App.Vector(-0.072205, 0.277694, 0), App.Vector(-0.082246, 0.272075, 0), App.Vector(-0.092002, 0.265676, 0), App.Vector(-0.10129, 0.258344, 0), App.Vector(-0.110161, 0.250235, 0), App.Vector(-0.118393, 0.241146, 0), App.Vector(-0.126055, 0.23122, 0), App.Vector(-0.133337, 0.22055, 0), App.Vector(-0.140036, 0.208989, 0), App.Vector(-0.146231, 0.196583, 0), App.Vector(-0.151895, 0.183252, 0), App.Vector(-0.156916, 0.168801, 0), App.Vector(-0.161351, 0.153065, 0), App.Vector(-0.164853, 0.135906, 0), App.Vector(-0.167851, 0.117461, 0), App.Vector(-0.170269, 0.09765, 0), App.Vector(-0.171919, 0.076463, 0), App.Vector(-0.17294, 0.053914, 0), App.Vector(-0.17303, 0.038447, 0), App.Vector(-0.173077, 0.0305, 0)], [4, 1, 1, 1, 1, 1, 1, 1, 1, 1, 1, 1, 1, 1, 1, 1, 1, 1, 1, 1, 1, 1, 1, 1, 4], [0, 0.810891512, 1.598919785, 2.382837074, 3.152667961, 3.926044502, 4.706494248, 5.493654104, 6.291793342, 7.103789334, 7.925228297, 8.761435821, 9.622817696, 10.50288917, 11.416980706, 12.369136599, 13.353924996, 14.394355917, 15.514179734, 16.714354668, 17.994756427, 19.357759367, 20.818452758, 22.365282078, 24], False, 3, [1, 1, 1, 1, 1, 1, 1, 1, 1, 1, 1, 1, 1, 1, 1, 1, 1, 1, 1, 1, 1, 1, 1, 1, 1, 1, 1], False), False)
sketch4.addGeometry(Part.BSplineCurve([App.Vector(0.166667, 0.0305, 0), App.Vector(0.166574, 0.038146, 0), App.Vector(0.166392, 0.053045, 0), App.Vector(0.165452, 0.074835, 0), App.Vector(0.163601, 0.095406, 0), App.Vector(0.161285, 0.114807, 0), App.Vector(0.158078, 0.132958, 0), App.Vector(0.154135, 0.149922, 0), App.Vector(0.149756, 0.165771, 0), App.Vector(0.144351, 0.180376, 0), App.Vector(0.138435, 0.193941, 0), App.Vector(0.131999, 0.206607, 0), App.Vector(0.125103, 0.218488, 0), App.Vector(0.11759, 0.229488, 0), App.Vector(0.109583, 0.239685, 0), App.Vector(0.100909, 0.248899, 0), App.Vector(0.091813, 0.257352, 0), App.Vector(0.082183, 0.264874, 0), App.Vector(0.072124, 0.271457, 0), App.Vector(0.061844, 0.277345, 0), App.Vector(0.051161, 0.282092, 0), App.Vector(0.040316, 0.286169, 0), App.Vector(0.029155, 0.289283, 0), App.Vector(0.017691, 0.291437, 0), App.Vector(0.005983, 0.292947, 0), App.Vector(-0.001932, 0.293062, 0), App.Vector(-0.005909, 0.29312, 0)], [4, 1, 1, 1, 1, 1, 1, 1, 1, 1, 1, 1, 1, 1, 1, 1, 1, 1, 1, 1, 1, 1, 1, 1, 4], [0, 1.561518951, 3.042555995, 4.452378317, 5.7783523, 7.031515105, 8.214008947, 9.334062868, 10.386615937, 11.391082383, 12.354592575, 13.286541444, 14.194233754, 15.072674879, 15.931287219, 16.775624067, 17.606195743, 18.42308326, 19.229000347, 20.022332153, 20.807536673, 21.593273796, 22.3848459, 23.188221202, 24], False, 3, [1, 1, 1, 1, 1, 1, 1, 1, 1, 1, 1, 1, 1, 1, 1, 1, 1, 1, 1, 1, 1, 1, 1, 1, 1, 1, 1], False), False)
sketch4.addGeometry(Part.BSplineCurve([App.Vector(-0.005909, -0.232521, 0), App.Vector(-0.001933, -0.232451, 0), App.Vector(0.005975, -0.232313, 0), App.Vector(0.017667, -0.230981, 0), App.Vector(0.029088, -0.228771, 0), App.Vector(0.04019, -0.225639, 0), App.Vector(0.051065, -0.221754, 0), App.Vector(0.061628, -0.216884, 0), App.Vector(0.071943, -0.211216, 0), App.Vector(0.081847, -0.204555, 0), App.Vector(0.09145, -0.197129, 0), App.Vector(0.100514, -0.188735, 0), App.Vector(0.10904, -0.179456, 0), App.Vector(0.117137, -0.169393, 0), App.Vector(0.124573, -0.158352, 0), App.Vector(0.131655, -0.146526, 0), App.Vector(0.137994, -0.133707, 0), App.Vector(0.144099, -0.12011, 0), App.Vector(0.149369, -0.105358, 0), App.Vector(0.154121, -0.089535, 0), App.Vector(0.157961, -0.072453, 0), App.Vector(0.161159, -0.054202, 0), App.Vector(0.163637, -0.034715, 0), App.Vector(0.165442, -0.014034, 0), App.Vector(0.166395, 0.007855, 0), App.Vector(0.166575, 0.02282, 0), App.Vector(0.166667, 0.0305, 0)], [4, 1, 1, 1, 1, 1, 1, 1, 1, 1, 1, 1, 1, 1, 1, 1, 1, 1, 1, 1, 1, 1, 1, 1, 4], [0, 0.810914788, 1.612654377, 2.396697861, 3.181598691, 3.963628158, 4.749916497, 5.551656086, 6.361998678, 7.18212741, 8.025565596, 8.878627764, 9.750805457, 10.657531673, 11.591944965, 12.560506719, 13.57287815, 14.630710178, 15.753379473, 16.941251878, 18.199788006, 19.531962791, 20.947069417, 22.433333509, 24], False, 3, [1, 1, 1, 1, 1, 1, 1, 1, 1, 1, 1, 1, 1, 1, 1, 1, 1, 1, 1, 1, 1, 1, 1, 1, 1, 1, 1], False), False)
sketch4.addGeometry(Part.BSplineCurve([App.Vector(-0.004407, -0.181239, 0), App.Vector(-0.009937, -0.180949, 0), App.Vector(-0.021007, -0.180368, 0), App.Vector(-0.037357, -0.176269, 0), App.Vector(-0.053029, -0.169124, 0), App.Vector(-0.065492, -0.161274, 0), App.Vector(-0.075044, -0.153797, 0), App.Vector(-0.08177, -0.147313, 0), App.Vector(-0.088077, -0.140221, 0), App.Vector(-0.093887, -0.132449, 0), App.Vector(-0.099328, -0.124097, 0), App.Vector(-0.104325, -0.115098, 0), App.Vector(-0.108828, -0.105408, 0), App.Vector(-0.112983, -0.095034, 0), App.Vector(-0.116636, -0.083666, 0), App.Vector(-0.119649, -0.071127, 0), App.Vector(-0.122433, -0.057347, 0), App.Vector(-0.124404, -0.042244, 0), App.Vector(-0.126156, -0.025918, 0), App.Vector(-0.127282, -0.008307, 0), App.Vector(-0.128158, 0.010559, 0), App.Vector(-0.128189, 0.023588, 0), App.Vector(-0.128205, 0.0303, 0)], [4, 1, 1, 1, 1, 1, 1, 1, 1, 1, 1, 1, 1, 1, 1, 1, 1, 1, 1, 1, 4], [0, 1.207732386, 2.417664972, 3.655092373, 4.956220595, 5.625982001, 6.301752483, 6.994047911, 7.697131622, 8.419323945, 9.170223765, 9.943494443, 10.752040957, 11.610060368, 12.549350801, 13.567764191, 14.679664412, 15.874934091, 17.154273443, 18.533957287, 20], False, 3, [1, 1, 1, 1, 1, 1, 1, 1, 1, 1, 1, 1, 1, 1, 1, 1, 1, 1, 1, 1, 1, 1, 1], False), False)
sketch4.addGeometry(Part.BSplineCurve([App.Vector(0.121795, 0.0303, 0), App.Vector(0.121716, 0.02429, 0), App.Vector(0.121563, 0.012534, 0), App.Vector(0.120975, -0.004683, 0), App.Vector(0.119457, -0.021036, 0), App.Vector(0.117772, -0.036594, 0), App.Vector(0.115286, -0.051273, 0), App.Vector(0.112607, -0.065194, 0), App.Vector(0.109006, -0.078186, 0), App.Vector(0.105161, -0.090452, 0), App.Vector(0.100759, -0.101852, 0), App.Vector(0.095914, -0.11244, 0), App.Vector(0.09074, -0.122266, 0), App.Vector(0.085119, -0.131304, 0), App.Vector(0.07912, -0.139595, 0), App.Vector(0.072583, -0.146971, 0), App.Vector(0.065768, -0.153662, 0), App.Vector(0.056223, -0.161299, 0), App.Vector(0.043727, -0.169087, 0), App.Vector(0.028177, -0.176253, 0), App.Vector(0.011996, -0.180369, 0), App.Vector(0.001057, -0.180949, 0), App.Vector(-0.004407, -0.181239, 0)], [4, 1, 1, 1, 1, 1, 1, 1, 1, 1, 1, 1, 1, 1, 1, 1, 1, 1, 1, 1, 4], [0, 1.31362396, 2.569729283, 3.763502607, 4.902122613, 5.988968491, 7.01645872, 7.998833611, 8.933434873, 9.825090667, 10.667526885, 11.477055099, 12.250526234, 12.991942729, 13.710640831, 14.402115721, 15.076753259, 16.378508321, 17.609869233, 18.806226677, 20], False, 3, [1, 1, 1, 1, 1, 1, 1, 1, 1, 1, 1, 1, 1, 1, 1, 1, 1, 1, 1, 1, 1, 1, 1], False), False)
sketch4.addGeometry(Part.BSplineCurve([App.Vector(0.102865, 0.156001, 0), App.Vector(0.104372, 0.151539, 0), App.Vector(0.107433, 0.142481, 0), App.Vector(0.111377, 0.128429, 0), App.Vector(0.114484, 0.113686, 0), App.Vector(0.117278, 0.098339, 0), App.Vector(0.119186, 0.082276, 0), App.Vector(0.120721, 0.065547, 0), App.Vector(0.121626, 0.048138, 0), App.Vector(0.121738, 0.03631, 0), App.Vector(0.121795, 0.0303, 0)], [4, 1, 1, 1, 1, 1, 1, 1, 4], [0, 0.884706709, 1.796334032, 2.740027952, 3.714592787, 4.726048262, 5.777819803, 6.87074269, 8], False, 3, [1, 1, 1, 1, 1, 1, 1, 1, 1, 1, 1], False), False)
sketch4.addGeometry(Part.BSplineCurve([App.Vector(-0.004407, 0.241838, 0), App.Vector(0.00113, 0.24161, 0), App.Vector(0.012192, 0.241154, 0), App.Vector(0.028354, 0.236754, 0), App.Vector(0.044044, 0.230115, 0), App.Vector(0.05634, 0.222266, 0), App.Vector(0.065695, 0.21479, 0), App.Vector(0.072397, 0.208417, 0), App.Vector(0.078549, 0.20128, 0), App.Vector(0.084383, 0.19358, 0), App.Vector(0.089735, 0.18517, 0), App.Vector(0.094601, 0.17609, 0), App.Vector(0.099041, 0.166314, 0), App.Vector(0.101571, 0.15949, 0), App.Vector(0.102865, 0.156001, 0)], [4, 1, 1, 1, 1, 1, 1, 1, 1, 1, 1, 1, 4], [0, 1.353760809, 2.704726607, 4.075137775, 5.516104923, 6.260822281, 7.007110065, 7.778089737, 8.566572457, 9.372053459, 10.217411131, 11.088608312, 12], False, 3, [1, 1, 1, 1, 1, 1, 1, 1, 1, 1, 1, 1, 1, 1, 1], False), False)
sketch4.addGeometry(Part.BSplineCurve([App.Vector(-0.128205, 0.0303, 0), App.Vector(-0.128188, 0.036978, 0), App.Vector(-0.128155, 0.049939, 0), App.Vector(-0.12729, 0.068774, 0), App.Vector(-0.126111, 0.086341, 0), App.Vector(-0.124591, 0.102663, 0), App.Vector(-0.122333, 0.117685, 0), App.Vector(-0.119804, 0.131509, 0), App.Vector(-0.116726, 0.144063, 0), App.Vector(-0.113083, 0.155432, 0), App.Vector(-0.108935, 0.165811, 0), App.Vector(-0.104406, 0.175468, 0), App.Vector(-0.09954, 0.184518, 0), App.Vector(-0.094094, 0.19288, 0), App.Vector(-0.088163, 0.200581, 0), App.Vector(-0.081882, 0.207757, 0), App.Vector(-0.075014, 0.214157, 0), App.Vector(-0.065514, 0.221832, 0), App.Vector(-0.052971, 0.229764, 0), App.Vector(-0.037168, 0.23667, 0), App.Vector(-0.02093, 0.241011, 0), App.Vector(-0.009908, 0.241562, 0), App.Vector(-0.004407, 0.241838, 0)], [4, 1, 1, 1, 1, 1, 1, 1, 1, 1, 1, 1, 1, 1, 1, 1, 1, 1, 1, 1, 4], [0, 1.459021318, 2.831673884, 4.118529203, 5.306027144, 6.411944654, 7.436330062, 8.375795394, 9.233974572, 10.042671642, 10.816086306, 11.563610507, 12.285937304, 12.993564865, 13.685989202, 14.367179055, 15.041617293, 16.353048772, 17.594441528, 18.799311195, 20], False, 3, [1, 1, 1, 1, 1, 1, 1, 1, 1, 1, 1, 1, 1, 1, 1, 1, 1, 1, 1, 1, 1, 1, 1], False), False)
sketch4.addGeometry(Part.LineSegment(App.Vector(-0.358974, -0.2197, 0), App.Vector(-0.451422, -0.2197, 0)), False)
sketch4.addGeometry(Part.LineSegment(App.Vector(-0.451422, -0.2197, 0), App.Vector(-0.480769, -0.168418, 0)), False)
sketch4.addGeometry(Part.LineSegment(App.Vector(-0.480769, -0.168418, 0), App.Vector(-0.403846, -0.168418, 0)), False)
sketch4.addGeometry(Part.LineSegment(App.Vector(-0.403846, -0.168418, 0), App.Vector(-0.403846, 0.2803, 0)), False)
sketch4.addGeometry(Part.LineSegment(App.Vector(-0.403846, 0.2803, 0), App.Vector(-0.358974, 0.2803, 0)), False)
sketch4.addGeometry(Part.LineSegment(App.Vector(-0.358974, 0.2803, 0), App.Vector(-0.358974, -0.2197, 0)), False)
sketch4.addConstraint(Sketcher.Constraint("Block", 1))
sketch4.addConstraint(Sketcher.Constraint("Block", 2))
sketch4.addConstraint(Sketcher.Constraint("Block", 3))
sketch4.addConstraint(Sketcher.Constraint("Block", 5))
sketch4.addConstraint(Sketcher.Constraint("Block", 6))
sketch4.addConstraint(Sketcher.Constraint("Block", 7))
sketch4.addConstraint(Sketcher.Constraint("Block", 8))
sketch4.addConstraint(Sketcher.Constraint("Block", 10))
sketch4.addConstraint(Sketcher.Constraint("Block", 11))
sketch4.addConstraint(Sketcher.Constraint("Block", 12))
sketch4.addConstraint(Sketcher.Constraint("Block", 13))
sketch4.addConstraint(Sketcher.Constraint("Block", 14))
sketch4.addConstraint(Sketcher.Constraint("Block", 15))
sketch4.addConstraint(Sketcher.Constraint("Block", 16))
sketch4.addConstraint(Sketcher.Constraint("Block", 17))
sketch4.addConstraint(Sketcher.Constraint("Block", 18))
sketch4.addConstraint(Sketcher.Constraint("Block", 19))
sketch4.addConstraint(Sketcher.Constraint("Block", 20))
sketch4.addConstraint(Sketcher.Constraint("Block", 21))
sketch4.addConstraint(Sketcher.Constraint("Block", 22))
sketch4.addConstraint(Sketcher.Constraint("Block", 23))
sketch4.addConstraint(Sketcher.Constraint("Block", 24))
sketch4.addConstraint(Sketcher.Constraint("Block", 25))
sketch4.addConstraint(Sketcher.Constraint("Coincident", 0, 2, 1, 2))
sketch4.addConstraint(Sketcher.Constraint("Coincident", 3, 1, 4, 1))
sketch4.addConstraint(Sketcher.Constraint("Coincident", 4, 2, 5, 2))
sketch4.addConstraint(Sketcher.Constraint("Coincident", 8, 1, 9, 1))
sketch4.addConstraint(Sketcher.Constraint("Coincident", 9, 2, 10, 2))
sketch4.addConstraint(Sketcher.Constraint("Coincident", 16, 1, 0, 1))
sketch4.addConstraint(Sketcher.Constraint("Coincident", 26, 2, 27, 1))
sketch4.addConstraint(Sketcher.Constraint("Coincident", 27, 2, 28, 1))
sketch4.addConstraint(Sketcher.Constraint("Coincident", 28, 2, 29, 1))
sketch4.addConstraint(Sketcher.Constraint("Coincident", 29, 2, 30, 1))
sketch4.addConstraint(Sketcher.Constraint("Coincident", 30, 2, 31, 1))
sketch4.addConstraint(Sketcher.Constraint("Coincident", 31, 2, 26, 1))
sketch4.addConstraint(Sketcher.Constraint("Horizontal", 26))
sketch4.addConstraint(Sketcher.Constraint("Horizontal", 28))
sketch4.addConstraint(Sketcher.Constraint("Vertical", 29))
sketch4.addConstraint(Sketcher.Constraint("Horizontal", 30))
sketch4.addConstraint(Sketcher.Constraint("Vertical", 31))
sketch4.addConstraint(Sketcher.Constraint("Equal", 9, 30))
sketch4.addConstraint(Sketcher.Constraint("DistanceY", 31, 2, 31, 1, Q("0.5 mm")))
sketch4.addConstraint(Sketcher.Constraint("DistanceY", 26, 2, 4, 2, Q("0.25 mm")))
sketch4.addConstraint(Sketcher.Constraint("DistanceX", 26, 2, 26, 1, Q("0.092448 mm")))
sketch4.addConstraint(Sketcher.Constraint("DistanceX", 28, 1, 28, 2, Q("0.076923 mm")))
sketch4.addConstraint(Sketcher.Constraint("DistanceY", 29, 1, 29, 2, Q("0.448718 mm")))
sketch4.addConstraint(Sketcher.Constraint("DistanceX", 27, 2, -1, 1, Q("0.480769 mm")))
sketch4.setExpression("Constraints[41]", "Params.sketch4_height")
pad3 = doc.addObject("PartDesign::Pad", "Pad002")
body.addObject(pad3)
pad3.Profile = sketch4
pad3.setExpression("Length", "Params.pad3_length")
pad3.Reversed = True

doc.recompute()
